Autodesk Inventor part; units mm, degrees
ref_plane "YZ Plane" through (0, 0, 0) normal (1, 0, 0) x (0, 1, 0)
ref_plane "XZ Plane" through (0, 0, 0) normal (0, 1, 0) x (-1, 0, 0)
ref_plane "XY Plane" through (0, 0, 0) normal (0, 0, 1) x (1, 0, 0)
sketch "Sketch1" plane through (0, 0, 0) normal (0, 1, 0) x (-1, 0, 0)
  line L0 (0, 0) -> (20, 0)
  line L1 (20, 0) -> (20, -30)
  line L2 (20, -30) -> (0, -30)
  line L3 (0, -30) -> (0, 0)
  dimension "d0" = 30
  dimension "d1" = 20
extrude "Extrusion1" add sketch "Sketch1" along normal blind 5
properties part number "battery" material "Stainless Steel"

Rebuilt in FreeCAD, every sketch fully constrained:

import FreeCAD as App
import Part
import Sketcher

V = App.Vector


def add_polygon(sketch, points):
    """Adds a closed chain of lines whose ends are joined by coincident constraints."""
    first, n = sketch.GeometryCount, len(points)
    for a, b in zip(points, points[1:] + points[:1]):
        sketch.addGeometry(Part.LineSegment(App.Vector(*a, 0), App.Vector(*b, 0)), False)
    for i in range(n):
        sketch.addConstraint(Sketcher.Constraint("Coincident", first + i, 2, first + (i + 1) % n, 1))

doc = App.newDocument("Part")
body = doc.addObject("PartDesign::Body", "Body")

sketch1 = body.newObject("Sketcher::SketchObject", "Sketch")
sketch1.AttachmentSupport = (doc.getObject("XZ_Plane"), [""])
sketch1.MapMode = "FlatFace"
add_polygon(sketch1, [(-20, 0), (0, 0), (0, -30), (-20, -30)])
sketch1.addConstraint(Sketcher.Constraint("Horizontal", 0))
sketch1.addConstraint(Sketcher.Constraint("Vertical", 1))
sketch1.addConstraint(Sketcher.Constraint("Horizontal", 2))
sketch1.addConstraint(Sketcher.Constraint("Vertical", 3))
sketch1.addConstraint(Sketcher.Constraint("Coincident", 0, 2, -1, 1))
sketch1.addConstraint(Sketcher.Constraint("DistanceX", 0, 1, 0, 2, 20.0))
sketch1.addConstraint(Sketcher.Constraint("DistanceY", 1, 2, 1, 1, 30.0))
pad1 = body.newObject("PartDesign::Pad", "Pad")
pad1.Profile = sketch1
pad1.Length = 5
pad1.Reversed = True

doc.recompute()
